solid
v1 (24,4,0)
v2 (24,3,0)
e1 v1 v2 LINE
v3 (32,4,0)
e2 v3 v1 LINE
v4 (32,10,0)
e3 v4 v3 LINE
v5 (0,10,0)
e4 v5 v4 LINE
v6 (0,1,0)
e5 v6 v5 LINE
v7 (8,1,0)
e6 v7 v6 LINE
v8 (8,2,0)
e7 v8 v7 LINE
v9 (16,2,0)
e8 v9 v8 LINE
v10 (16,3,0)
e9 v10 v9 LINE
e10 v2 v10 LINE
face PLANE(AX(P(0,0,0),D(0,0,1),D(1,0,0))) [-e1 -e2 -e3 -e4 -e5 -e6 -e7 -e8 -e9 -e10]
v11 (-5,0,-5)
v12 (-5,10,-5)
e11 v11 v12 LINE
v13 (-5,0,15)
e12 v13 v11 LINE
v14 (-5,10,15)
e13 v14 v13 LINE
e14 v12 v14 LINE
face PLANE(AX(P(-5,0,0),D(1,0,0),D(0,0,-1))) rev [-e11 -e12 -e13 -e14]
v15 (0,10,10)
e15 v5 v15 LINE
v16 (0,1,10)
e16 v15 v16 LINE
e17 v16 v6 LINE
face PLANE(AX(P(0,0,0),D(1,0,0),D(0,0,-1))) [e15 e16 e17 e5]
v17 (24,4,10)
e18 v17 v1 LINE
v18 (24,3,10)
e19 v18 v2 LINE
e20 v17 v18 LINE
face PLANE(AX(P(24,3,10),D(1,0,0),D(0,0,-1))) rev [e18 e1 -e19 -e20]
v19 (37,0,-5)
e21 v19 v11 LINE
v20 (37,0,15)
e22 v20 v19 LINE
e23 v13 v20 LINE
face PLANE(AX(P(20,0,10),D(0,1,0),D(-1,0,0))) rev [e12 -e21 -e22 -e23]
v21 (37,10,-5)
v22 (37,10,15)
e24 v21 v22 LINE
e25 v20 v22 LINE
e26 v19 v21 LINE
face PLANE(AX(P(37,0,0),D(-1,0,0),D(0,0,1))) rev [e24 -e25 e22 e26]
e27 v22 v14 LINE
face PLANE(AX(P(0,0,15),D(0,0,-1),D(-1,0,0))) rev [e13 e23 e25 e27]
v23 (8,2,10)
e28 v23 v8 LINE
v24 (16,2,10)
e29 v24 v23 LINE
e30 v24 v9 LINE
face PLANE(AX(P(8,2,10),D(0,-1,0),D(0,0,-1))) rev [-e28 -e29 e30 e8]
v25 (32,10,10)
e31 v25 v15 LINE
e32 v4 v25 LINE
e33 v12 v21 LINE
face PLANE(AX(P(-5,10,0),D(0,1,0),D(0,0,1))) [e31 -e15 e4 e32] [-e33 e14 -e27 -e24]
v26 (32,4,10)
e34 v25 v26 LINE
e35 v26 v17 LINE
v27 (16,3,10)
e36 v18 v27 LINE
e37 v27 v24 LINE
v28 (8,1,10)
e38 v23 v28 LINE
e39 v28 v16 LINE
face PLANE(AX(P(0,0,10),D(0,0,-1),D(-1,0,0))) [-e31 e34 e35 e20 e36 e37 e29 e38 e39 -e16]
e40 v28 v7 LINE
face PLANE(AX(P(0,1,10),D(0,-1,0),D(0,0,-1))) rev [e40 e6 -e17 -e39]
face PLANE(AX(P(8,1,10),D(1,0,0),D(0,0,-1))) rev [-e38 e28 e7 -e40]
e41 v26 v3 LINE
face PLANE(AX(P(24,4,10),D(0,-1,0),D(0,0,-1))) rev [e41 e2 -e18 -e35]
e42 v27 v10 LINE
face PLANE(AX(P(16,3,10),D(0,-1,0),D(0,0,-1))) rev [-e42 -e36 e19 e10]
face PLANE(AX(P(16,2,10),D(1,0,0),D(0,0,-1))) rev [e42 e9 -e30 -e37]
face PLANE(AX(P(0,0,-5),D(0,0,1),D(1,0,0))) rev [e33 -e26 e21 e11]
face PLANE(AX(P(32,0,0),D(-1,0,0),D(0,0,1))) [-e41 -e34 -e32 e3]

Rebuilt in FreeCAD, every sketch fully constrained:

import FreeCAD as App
import Part
import Sketcher

V = App.Vector
Q = App.Units.Quantity


def add_polygon(sketch, points):
    """Adds a closed chain of lines whose ends are joined by coincident constraints."""
    first, n = sketch.GeometryCount, len(points)
    for a, b in zip(points, points[1:] + points[:1]):
        sketch.addGeometry(Part.LineSegment(App.Vector(*a, 0), App.Vector(*b, 0)), False)
    for i in range(n):
        sketch.addConstraint(Sketcher.Constraint("Coincident", first + i, 2, first + (i + 1) % n, 1))

doc = App.newDocument("Part")
body = doc.addObject("PartDesign::Body", "Body")

# Sketch on XY plane
sketch1 = body.newObject("Sketcher::SketchObject", "Sketch")
sketch1.AttachmentSupport = (doc.getObject("XY_Plane"), [""])
sketch1.MapMode = "FlatFace"
add_polygon(sketch1, [(32, 0), (32, 4), (24, 4), (24, 3), (16, 3), (16, 2), (8, 2), (8, 1), (0, 1), (0, 0)])  # lines 0-9
sketch1.addConstraint([
    Sketcher.Constraint("Vertical", 0),
    Sketcher.Constraint("Horizontal", 1),
    Sketcher.Constraint("Vertical", 2),
    Sketcher.Constraint("Horizontal", 3),
    Sketcher.Constraint("Vertical", 4),
    Sketcher.Constraint("Horizontal", 5),
    Sketcher.Constraint("Vertical", 6),
    Sketcher.Constraint("Horizontal", 7),
    Sketcher.Constraint("Vertical", 8),
    Sketcher.Constraint("Horizontal", 9),
    Sketcher.Constraint("Coincident", 8, 2, -1, 1),
    Sketcher.Constraint("Equal", 1, 3),
    Sketcher.Constraint("Equal", 3, 5),
    Sketcher.Constraint("Equal", 5, 7),
    Sketcher.Constraint("Equal", 2, 4),
    Sketcher.Constraint("Equal", 4, 6),
    Sketcher.Constraint("Equal", 6, 8),
    Sketcher.Constraint("DistanceX", 1, 2, 1, 1, Q("8 mm")),
    Sketcher.Constraint("DistanceY", 0, 1, 0, 2, Q("4 mm")),
])
pad1 = body.newObject("PartDesign::Pad", "Pad")
pad1.Profile = sketch1
pad1.Length = 10

# Sketch on YZ plane
sketch2 = body.newObject("Sketcher::SketchObject", "Sketch001")
sketch2.AttachmentSupport = (doc.getObject("YZ_Plane"), [""])
sketch2.MapMode = "FlatFace"
add_polygon(sketch2, [(10, 10), (0, 10), (0, 0), (10, 0)])  # lines 0-3
sketch2.addConstraint([
    Sketcher.Constraint("Horizontal", 0),
    Sketcher.Constraint("Vertical", 1),
    Sketcher.Constraint("Horizontal", 2),
    Sketcher.Constraint("Vertical", 3),
    Sketcher.Constraint("Coincident", 1, 2, -1, 1),
    Sketcher.Constraint("Equal", 2, 1),
    Sketcher.Constraint("DistanceX", 0, 2, 0, 1, Q("10 mm")),
])
pad2 = body.newObject("PartDesign::Pad", "Pad001")
pad2.Profile = sketch2
pad2.Length = 5
pad2.Reversed = True

# Sketch on XY plane
sketch3 = body.newObject("Sketcher::SketchObject", "Sketch002")
sketch3.AttachmentSupport = (doc.getObject("XY_Plane"), [""])
sketch3.MapMode = "FlatFace"
add_polygon(sketch3, [(32, 10), (32, 0), (-5, 0), (-5, 10)])  # lines 0-3
sketch3.addConstraint([
    Sketcher.Constraint("Vertical", 0),
    Sketcher.Constraint("Horizontal", 1),
    Sketcher.Constraint("Vertical", 2),
    Sketcher.Constraint("Horizontal", 3),
    Sketcher.Constraint("PointOnObject", 0, 2, -1),
    Sketcher.Constraint("DistanceX", 1, 2, 1, 1, Q("37 mm")),
    Sketcher.Constraint("DistanceY", 0, 2, 0, 1, Q("10 mm")),
    Sketcher.Constraint("DistanceX", -1, 1, 0, 2, Q("32 mm")),
])
pad3 = body.newObject("PartDesign::Pad", "Pad002")
pad3.Profile = sketch3
pad3.Length = 5
pad3.Reversed = True

# Sketch on YZ plane
sketch4 = body.newObject("Sketcher::SketchObject", "Sketch003")
sketch4.AttachmentSupport = (doc.getObject("YZ_Plane"), [""])
sketch4.MapMode = "FlatFace"
sketch4.AttachmentOffset = App.Placement(V(0, 0, 32), App.Rotation())
add_polygon(sketch4, [(10, 10), (0, 10), (0, -5), (10, -5)])  # lines 0-3
sketch4.addConstraint([
    Sketcher.Constraint("Horizontal", 0),
    Sketcher.Constraint("Vertical", 1),
    Sketcher.Constraint("Horizontal", 2),
    Sketcher.Constraint("Vertical", 3),
    Sketcher.Constraint("PointOnObject", 0, 2, -2),
    Sketcher.Constraint("DistanceX", 0, 2, 0, 1, Q("10 mm")),
    Sketcher.Constraint("DistanceY", 1, 2, 1, 1, Q("15 mm")),
    Sketcher.Constraint("DistanceY", -1, 1, 0, 2, Q("10 mm")),
])
pad4 = body.newObject("PartDesign::Pad", "Pad003")
pad4.Profile = sketch4
pad4.Length = 5

# Sketch on XY plane
sketch5 = body.newObject("Sketcher::SketchObject", "Sketch004")
sketch5.AttachmentSupport = (doc.getObject("XY_Plane"), [""])
sketch5.MapMode = "FlatFace"
sketch5.AttachmentOffset = App.Placement(V(0, 0, 10), App.Rotation())
add_polygon(sketch5, [(-5, 10), (-5, 0), (37, 0), (37, 10)])  # lines 0-3
sketch5.addConstraint([
    Sketcher.Constraint("Vertical", 0),
    Sketcher.Constraint("Horizontal", 1),
    Sketcher.Constraint("Vertical", 2),
    Sketcher.Constraint("Horizontal", 3),
    Sketcher.Constraint("PointOnObject", 0, 2, -1),
    Sketcher.Constraint("DistanceX", 1, 1, 1, 2, Q("42 mm")),
    Sketcher.Constraint("DistanceY", 0, 2, 0, 1, Q("10 mm")),
    Sketcher.Constraint("DistanceX", 0, 2, -1, 1, Q("5 mm")),
])
pad5 = body.newObject("PartDesign::Pad", "Pad004")
pad5.Profile = sketch5
pad5.Length = 5

doc.recompute()
